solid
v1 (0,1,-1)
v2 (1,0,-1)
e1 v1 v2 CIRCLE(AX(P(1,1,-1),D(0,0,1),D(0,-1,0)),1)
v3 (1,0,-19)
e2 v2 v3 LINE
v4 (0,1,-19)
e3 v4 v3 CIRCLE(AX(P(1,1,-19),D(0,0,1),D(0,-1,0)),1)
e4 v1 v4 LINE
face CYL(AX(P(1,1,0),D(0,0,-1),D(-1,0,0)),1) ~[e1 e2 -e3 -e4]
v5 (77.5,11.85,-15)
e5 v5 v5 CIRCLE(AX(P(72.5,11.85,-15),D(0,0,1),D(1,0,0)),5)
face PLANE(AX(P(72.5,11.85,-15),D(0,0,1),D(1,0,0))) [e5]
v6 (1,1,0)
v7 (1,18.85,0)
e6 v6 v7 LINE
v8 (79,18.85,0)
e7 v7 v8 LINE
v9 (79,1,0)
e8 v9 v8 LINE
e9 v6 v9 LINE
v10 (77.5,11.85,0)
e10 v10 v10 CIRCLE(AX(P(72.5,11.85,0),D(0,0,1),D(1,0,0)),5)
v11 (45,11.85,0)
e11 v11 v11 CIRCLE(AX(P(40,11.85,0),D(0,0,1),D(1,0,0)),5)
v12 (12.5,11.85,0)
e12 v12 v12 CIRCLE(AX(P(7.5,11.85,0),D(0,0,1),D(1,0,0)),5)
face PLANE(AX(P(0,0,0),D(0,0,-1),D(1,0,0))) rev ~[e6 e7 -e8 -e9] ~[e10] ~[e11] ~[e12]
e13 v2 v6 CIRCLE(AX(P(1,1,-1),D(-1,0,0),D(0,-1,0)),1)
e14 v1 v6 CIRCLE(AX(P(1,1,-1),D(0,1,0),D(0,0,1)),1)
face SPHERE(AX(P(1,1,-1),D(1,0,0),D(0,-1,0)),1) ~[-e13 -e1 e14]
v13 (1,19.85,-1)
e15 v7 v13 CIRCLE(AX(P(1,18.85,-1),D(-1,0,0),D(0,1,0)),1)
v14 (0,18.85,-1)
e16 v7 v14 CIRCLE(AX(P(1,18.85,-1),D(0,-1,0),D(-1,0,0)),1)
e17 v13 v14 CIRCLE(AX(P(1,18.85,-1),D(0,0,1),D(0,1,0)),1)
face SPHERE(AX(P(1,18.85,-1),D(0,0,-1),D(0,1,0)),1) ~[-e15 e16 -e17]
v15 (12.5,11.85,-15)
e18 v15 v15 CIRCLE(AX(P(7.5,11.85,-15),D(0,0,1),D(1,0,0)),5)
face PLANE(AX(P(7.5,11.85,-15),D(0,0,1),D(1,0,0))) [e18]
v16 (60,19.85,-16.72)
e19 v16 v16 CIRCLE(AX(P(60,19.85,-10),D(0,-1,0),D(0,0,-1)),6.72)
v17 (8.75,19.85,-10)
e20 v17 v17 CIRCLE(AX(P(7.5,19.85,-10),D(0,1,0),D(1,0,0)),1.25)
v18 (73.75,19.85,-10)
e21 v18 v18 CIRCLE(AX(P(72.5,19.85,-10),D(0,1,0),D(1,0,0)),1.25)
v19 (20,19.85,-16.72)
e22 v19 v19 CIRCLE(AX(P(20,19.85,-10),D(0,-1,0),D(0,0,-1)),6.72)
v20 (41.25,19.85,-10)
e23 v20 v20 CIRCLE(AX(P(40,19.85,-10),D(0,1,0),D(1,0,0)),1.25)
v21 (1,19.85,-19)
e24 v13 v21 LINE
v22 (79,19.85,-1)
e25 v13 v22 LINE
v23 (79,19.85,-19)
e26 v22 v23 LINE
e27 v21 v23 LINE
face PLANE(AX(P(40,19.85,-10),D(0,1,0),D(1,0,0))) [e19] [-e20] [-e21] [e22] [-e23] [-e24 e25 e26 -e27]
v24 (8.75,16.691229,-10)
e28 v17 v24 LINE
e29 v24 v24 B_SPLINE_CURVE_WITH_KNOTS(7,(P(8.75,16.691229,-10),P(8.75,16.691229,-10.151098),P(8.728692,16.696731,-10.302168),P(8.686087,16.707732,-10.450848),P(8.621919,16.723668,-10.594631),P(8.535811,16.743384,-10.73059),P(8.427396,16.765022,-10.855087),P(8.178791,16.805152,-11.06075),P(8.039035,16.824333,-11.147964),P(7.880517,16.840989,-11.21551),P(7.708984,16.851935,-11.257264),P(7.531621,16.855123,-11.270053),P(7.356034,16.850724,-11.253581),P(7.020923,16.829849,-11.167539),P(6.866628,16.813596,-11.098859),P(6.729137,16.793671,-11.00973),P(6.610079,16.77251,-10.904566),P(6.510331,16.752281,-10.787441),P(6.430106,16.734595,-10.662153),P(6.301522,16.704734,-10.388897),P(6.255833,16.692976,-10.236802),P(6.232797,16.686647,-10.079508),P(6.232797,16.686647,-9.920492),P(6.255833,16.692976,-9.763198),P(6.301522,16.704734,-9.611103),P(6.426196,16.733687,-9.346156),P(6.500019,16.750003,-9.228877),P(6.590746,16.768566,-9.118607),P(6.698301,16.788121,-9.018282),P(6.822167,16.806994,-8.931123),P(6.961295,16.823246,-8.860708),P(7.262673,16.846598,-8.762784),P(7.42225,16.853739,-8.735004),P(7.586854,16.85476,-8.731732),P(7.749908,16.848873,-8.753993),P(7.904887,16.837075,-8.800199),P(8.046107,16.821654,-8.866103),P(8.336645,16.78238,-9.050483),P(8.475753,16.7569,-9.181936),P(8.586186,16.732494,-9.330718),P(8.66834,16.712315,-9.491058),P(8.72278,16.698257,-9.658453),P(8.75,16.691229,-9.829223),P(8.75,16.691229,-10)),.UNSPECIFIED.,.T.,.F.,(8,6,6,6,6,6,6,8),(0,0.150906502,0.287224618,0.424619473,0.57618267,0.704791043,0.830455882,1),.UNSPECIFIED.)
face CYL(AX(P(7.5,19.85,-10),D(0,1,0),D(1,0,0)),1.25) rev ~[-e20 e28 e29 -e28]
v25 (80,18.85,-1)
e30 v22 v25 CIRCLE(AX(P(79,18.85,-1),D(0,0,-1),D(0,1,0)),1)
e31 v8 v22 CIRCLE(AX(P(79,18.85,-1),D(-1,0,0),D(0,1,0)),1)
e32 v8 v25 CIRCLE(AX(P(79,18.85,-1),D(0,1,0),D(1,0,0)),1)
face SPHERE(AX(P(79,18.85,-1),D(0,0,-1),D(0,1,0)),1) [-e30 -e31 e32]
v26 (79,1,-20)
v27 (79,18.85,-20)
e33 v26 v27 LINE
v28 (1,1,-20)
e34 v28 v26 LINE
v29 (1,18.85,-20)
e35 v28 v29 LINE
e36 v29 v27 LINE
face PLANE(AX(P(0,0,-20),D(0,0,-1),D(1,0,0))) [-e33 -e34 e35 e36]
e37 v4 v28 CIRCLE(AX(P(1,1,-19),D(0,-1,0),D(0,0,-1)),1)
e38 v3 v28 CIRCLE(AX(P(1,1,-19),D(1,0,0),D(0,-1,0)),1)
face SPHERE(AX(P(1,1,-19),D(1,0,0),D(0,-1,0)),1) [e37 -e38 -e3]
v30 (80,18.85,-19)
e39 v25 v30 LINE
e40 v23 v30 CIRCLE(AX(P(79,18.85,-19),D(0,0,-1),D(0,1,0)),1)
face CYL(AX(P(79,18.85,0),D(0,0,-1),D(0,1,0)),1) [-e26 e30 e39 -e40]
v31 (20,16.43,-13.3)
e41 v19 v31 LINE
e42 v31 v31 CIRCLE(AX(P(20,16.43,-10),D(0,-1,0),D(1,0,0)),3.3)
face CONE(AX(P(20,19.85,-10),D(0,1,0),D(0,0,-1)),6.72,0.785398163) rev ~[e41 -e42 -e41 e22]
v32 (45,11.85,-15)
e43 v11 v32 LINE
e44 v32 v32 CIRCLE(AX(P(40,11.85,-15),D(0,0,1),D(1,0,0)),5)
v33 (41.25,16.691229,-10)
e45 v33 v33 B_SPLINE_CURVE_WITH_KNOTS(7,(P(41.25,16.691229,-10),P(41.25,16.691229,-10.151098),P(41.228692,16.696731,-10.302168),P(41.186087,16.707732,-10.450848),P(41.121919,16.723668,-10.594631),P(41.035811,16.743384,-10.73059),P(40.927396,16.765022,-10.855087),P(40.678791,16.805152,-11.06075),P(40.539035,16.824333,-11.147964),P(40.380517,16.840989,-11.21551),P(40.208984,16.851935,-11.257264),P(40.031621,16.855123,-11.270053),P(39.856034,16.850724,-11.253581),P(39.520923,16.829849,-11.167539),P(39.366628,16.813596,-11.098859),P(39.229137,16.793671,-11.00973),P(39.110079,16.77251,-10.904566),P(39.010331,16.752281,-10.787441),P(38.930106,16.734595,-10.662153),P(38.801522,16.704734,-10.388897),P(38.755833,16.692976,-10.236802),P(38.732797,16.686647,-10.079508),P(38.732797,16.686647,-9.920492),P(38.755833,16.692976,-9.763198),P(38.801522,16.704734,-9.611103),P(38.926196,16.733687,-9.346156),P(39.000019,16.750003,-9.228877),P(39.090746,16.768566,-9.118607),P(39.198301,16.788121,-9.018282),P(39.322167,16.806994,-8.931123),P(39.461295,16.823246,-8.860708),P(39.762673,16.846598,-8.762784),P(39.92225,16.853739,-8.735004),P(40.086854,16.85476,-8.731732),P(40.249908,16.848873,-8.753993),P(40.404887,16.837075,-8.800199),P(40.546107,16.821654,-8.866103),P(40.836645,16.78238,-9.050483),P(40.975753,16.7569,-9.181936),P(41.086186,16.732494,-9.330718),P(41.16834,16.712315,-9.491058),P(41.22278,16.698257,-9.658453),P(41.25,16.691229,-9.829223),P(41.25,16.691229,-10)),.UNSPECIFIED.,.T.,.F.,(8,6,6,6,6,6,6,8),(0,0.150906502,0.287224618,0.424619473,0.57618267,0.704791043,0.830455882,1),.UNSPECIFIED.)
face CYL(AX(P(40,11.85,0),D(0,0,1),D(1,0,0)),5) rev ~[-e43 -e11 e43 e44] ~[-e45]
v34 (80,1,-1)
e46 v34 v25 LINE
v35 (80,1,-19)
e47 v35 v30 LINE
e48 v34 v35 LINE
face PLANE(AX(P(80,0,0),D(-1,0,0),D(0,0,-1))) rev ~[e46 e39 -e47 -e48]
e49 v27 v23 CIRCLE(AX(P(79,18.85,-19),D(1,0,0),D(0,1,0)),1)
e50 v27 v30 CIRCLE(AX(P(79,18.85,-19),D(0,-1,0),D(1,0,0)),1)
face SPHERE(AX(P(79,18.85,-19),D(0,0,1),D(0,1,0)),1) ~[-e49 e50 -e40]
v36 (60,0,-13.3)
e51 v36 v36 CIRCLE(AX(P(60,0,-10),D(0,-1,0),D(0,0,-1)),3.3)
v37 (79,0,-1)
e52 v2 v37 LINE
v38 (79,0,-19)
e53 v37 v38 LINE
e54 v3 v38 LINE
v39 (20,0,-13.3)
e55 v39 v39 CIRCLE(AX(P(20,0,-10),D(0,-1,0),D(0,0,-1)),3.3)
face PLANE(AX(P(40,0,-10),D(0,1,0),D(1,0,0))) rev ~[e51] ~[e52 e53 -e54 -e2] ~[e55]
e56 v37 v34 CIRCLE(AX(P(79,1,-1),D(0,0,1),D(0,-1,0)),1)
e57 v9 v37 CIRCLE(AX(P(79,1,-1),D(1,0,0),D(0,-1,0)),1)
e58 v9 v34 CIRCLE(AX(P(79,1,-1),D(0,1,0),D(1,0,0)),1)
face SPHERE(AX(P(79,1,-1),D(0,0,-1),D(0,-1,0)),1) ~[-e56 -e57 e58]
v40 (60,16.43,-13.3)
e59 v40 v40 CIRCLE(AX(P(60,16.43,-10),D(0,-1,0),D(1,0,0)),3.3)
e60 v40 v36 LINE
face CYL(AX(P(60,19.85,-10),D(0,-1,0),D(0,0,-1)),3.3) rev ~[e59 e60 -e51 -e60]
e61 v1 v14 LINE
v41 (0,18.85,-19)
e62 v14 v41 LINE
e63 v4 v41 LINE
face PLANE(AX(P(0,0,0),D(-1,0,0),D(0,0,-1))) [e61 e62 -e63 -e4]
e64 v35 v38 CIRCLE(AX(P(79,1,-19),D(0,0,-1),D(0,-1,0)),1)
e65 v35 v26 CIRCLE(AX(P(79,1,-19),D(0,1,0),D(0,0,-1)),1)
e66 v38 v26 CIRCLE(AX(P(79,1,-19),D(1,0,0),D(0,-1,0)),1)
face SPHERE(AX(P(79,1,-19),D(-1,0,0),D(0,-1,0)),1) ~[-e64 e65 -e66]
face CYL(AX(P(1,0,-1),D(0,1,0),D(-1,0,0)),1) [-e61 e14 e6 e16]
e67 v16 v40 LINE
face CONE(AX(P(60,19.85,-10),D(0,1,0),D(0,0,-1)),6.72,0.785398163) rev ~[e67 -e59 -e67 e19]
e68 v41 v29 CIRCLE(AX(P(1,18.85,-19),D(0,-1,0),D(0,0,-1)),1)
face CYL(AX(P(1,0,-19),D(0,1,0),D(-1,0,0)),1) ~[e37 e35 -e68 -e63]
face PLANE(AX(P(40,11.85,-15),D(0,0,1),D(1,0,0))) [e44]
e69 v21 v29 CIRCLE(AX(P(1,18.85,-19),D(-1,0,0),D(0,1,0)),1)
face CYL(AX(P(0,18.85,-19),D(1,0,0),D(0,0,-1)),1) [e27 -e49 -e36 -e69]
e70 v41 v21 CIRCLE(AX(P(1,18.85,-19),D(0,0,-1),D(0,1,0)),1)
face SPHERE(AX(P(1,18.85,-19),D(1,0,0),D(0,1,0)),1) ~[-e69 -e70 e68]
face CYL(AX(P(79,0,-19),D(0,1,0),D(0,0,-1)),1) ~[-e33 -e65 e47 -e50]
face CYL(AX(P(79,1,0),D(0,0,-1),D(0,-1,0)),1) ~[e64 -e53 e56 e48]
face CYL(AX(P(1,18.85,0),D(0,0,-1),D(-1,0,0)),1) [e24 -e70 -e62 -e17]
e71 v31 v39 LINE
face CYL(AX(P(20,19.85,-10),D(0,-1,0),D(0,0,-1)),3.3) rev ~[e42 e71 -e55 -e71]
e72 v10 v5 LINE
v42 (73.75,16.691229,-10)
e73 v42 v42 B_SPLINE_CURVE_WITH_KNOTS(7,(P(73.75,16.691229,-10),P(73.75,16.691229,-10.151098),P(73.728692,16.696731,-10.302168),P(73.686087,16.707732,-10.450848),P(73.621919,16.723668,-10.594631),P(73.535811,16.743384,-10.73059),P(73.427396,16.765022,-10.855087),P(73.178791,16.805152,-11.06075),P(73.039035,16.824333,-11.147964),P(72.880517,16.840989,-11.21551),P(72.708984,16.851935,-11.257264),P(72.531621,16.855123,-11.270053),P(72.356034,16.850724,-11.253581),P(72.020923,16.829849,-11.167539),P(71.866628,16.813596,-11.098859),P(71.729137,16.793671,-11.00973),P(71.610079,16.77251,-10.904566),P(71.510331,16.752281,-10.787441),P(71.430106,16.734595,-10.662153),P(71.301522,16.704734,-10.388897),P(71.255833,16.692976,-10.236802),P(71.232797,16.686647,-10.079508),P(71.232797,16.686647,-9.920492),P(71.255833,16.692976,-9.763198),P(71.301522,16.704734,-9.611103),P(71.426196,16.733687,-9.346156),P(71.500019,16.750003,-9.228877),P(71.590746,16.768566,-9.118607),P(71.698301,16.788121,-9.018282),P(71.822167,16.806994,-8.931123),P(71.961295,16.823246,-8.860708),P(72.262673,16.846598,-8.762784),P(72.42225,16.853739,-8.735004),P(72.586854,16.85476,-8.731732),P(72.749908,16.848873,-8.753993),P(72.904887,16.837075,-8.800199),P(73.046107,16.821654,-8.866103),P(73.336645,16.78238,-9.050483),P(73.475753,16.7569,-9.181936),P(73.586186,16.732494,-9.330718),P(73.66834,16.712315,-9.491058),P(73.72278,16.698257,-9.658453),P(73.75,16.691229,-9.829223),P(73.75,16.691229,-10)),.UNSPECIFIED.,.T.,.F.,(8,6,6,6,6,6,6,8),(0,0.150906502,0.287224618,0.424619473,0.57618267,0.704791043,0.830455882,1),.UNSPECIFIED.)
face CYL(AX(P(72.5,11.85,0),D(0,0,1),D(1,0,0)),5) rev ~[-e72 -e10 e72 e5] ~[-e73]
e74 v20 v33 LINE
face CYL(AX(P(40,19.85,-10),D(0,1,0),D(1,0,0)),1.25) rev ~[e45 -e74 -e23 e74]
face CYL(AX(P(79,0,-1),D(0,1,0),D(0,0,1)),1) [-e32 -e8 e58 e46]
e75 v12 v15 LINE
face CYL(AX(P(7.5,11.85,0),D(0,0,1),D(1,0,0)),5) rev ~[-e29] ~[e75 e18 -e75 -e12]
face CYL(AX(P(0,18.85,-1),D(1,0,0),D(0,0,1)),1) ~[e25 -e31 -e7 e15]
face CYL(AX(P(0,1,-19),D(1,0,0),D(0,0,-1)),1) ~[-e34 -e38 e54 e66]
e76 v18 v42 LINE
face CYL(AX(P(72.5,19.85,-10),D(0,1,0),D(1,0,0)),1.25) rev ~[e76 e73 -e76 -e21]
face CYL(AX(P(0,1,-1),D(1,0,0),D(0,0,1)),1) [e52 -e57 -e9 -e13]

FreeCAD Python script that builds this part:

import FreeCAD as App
import Part
import Sketcher
Q = App.Units.Quantity


def edges_at(feature, points):
    """Names of the edges that pass closest to the given points."""
    edges = feature.Shape.Edges
    near = lambda p: min(range(len(edges)), key=lambda i: edges[i].distToShape(Part.Vertex(*p))[0])
    return sorted({f"Edge{near(p) + 1}" for p in points})

doc = App.newDocument("Part")
body = doc.addObject("PartDesign::Body", "Body")

# Sketch on XZ plane
sketch1 = body.newObject("Sketcher::SketchObject", "Sketch")
sketch1.AttachmentSupport = (doc.getObject("XZ_Plane"), [""])
sketch1.MapMode = "FlatFace"
sketch1.addGeometry([
    Part.LineSegment(App.Vector(0, -20, 0), App.Vector(0, 0, 0)),
    Part.LineSegment(App.Vector(0, 0, 0), App.Vector(80, 0, 0)),
    Part.LineSegment(App.Vector(80, 0, 0), App.Vector(80, -20, 0)),
    Part.LineSegment(App.Vector(80, -20, 0), App.Vector(0, -20, 0)),
], False)
sketch1.addConstraint([
    Sketcher.Constraint("Coincident", 0, 2, 1, 1),
    Sketcher.Constraint("Coincident", 1, 2, 2, 1),
    Sketcher.Constraint("Coincident", 2, 2, 3, 1),
    Sketcher.Constraint("Coincident", 3, 2, 0, 1),
    Sketcher.Constraint("Vertical", 0),
    Sketcher.Constraint("Horizontal", 1),
    Sketcher.Constraint("Vertical", 2),
    Sketcher.Constraint("Horizontal", 3),
    Sketcher.Constraint("Coincident", 0, 2, -1, 1),
    Sketcher.Constraint("DistanceX", 1, 1, 1, 2, Q("80 mm")),
    Sketcher.Constraint("DistanceY", 0, 1, 0, 2, Q("20 mm")),
])
pad1 = body.newObject("PartDesign::Pad", "Pad")
pad1.Profile = sketch1
pad1.Length = 19.85
pad1.Reversed = True

# Sketch on XZ plane
sketch2 = body.newObject("Sketcher::SketchObject", "Sketch001")
sketch2.AttachmentSupport = (doc.getObject("XZ_Plane"), [""])
sketch2.MapMode = "FlatFace"
sketch2.AttachmentOffset = App.Placement(App.Vector(0, 0, -19.85), App.Rotation())
sketch2.addGeometry(Part.Circle(App.Vector(20, -10, 0), App.Vector(0, 0, 1), 3.1), False)
sketch2.addConstraint([
    Sketcher.Constraint("Diameter", 0, Q("6.2 mm")),
    Sketcher.Constraint("DistanceX", -1, 1, 0, 3, Q("20 mm")),
    Sketcher.Constraint("DistanceY", 0, 3, -1, 1, Q("10 mm")),
])
pocket1 = body.newObject("PartDesign::Pocket", "Pocket")
pocket1.Profile = sketch2
pocket1.Type = "UpToFirst"
pocket1.Reversed = True

# Sketch on XZ plane
sketch3 = body.newObject("Sketcher::SketchObject", "Sketch002")
sketch3.AttachmentSupport = (doc.getObject("XZ_Plane"), [""])
sketch3.MapMode = "FlatFace"
sketch3.AttachmentOffset = App.Placement(App.Vector(0, 0, -19.85), App.Rotation())
sketch3.addGeometry(Part.Circle(App.Vector(60, -10, 0), App.Vector(0, 0, 1), 3.1), False)
sketch3.addConstraint([
    Sketcher.Constraint("Diameter", 0, Q("6.2 mm")),
    Sketcher.Constraint("DistanceX", -1, 1, 0, 3, Q("60 mm")),
    Sketcher.Constraint("DistanceY", 0, 3, -1, 1, Q("10 mm")),
])
pocket2 = body.newObject("PartDesign::Pocket", "Pocket001")
pocket2.Profile = sketch3
pocket2.Type = "UpToFirst"
pocket2.Reversed = True

# Sketch on XY plane
sketch4 = body.newObject("Sketcher::SketchObject", "Sketch003")
sketch4.AttachmentSupport = (doc.getObject("XY_Plane"), [""])
sketch4.MapMode = "FlatFace"
sketch4.addGeometry([
    Part.Circle(App.Vector(7.5, 11.85, 0), App.Vector(0, 0, 1), 5),
    Part.Circle(App.Vector(72.5, 11.85, 0), App.Vector(0, 0, 1), 5),
    Part.Circle(App.Vector(40, 11.85, 0), App.Vector(0, 0, 1), 5),
], False)
sketch4.addConstraint([
    Sketcher.Constraint("Equal", 0, 1),
    Sketcher.Constraint("Equal", 1, 2),
    Sketcher.Constraint("Horizontal", 0, 3, 1, 3),
    Sketcher.Constraint("Horizontal", 1, 3, 2, 3),
    Sketcher.Constraint("Diameter", 0, Q("10 mm")),
    Sketcher.Constraint("DistanceX", -1, 1, 2, 3, Q("40 mm")),
    Sketcher.Constraint("DistanceX", 0, 3, 1, 3, Q("65 mm")),
    Sketcher.Constraint("DistanceX", -1, 1, 0, 3, Q("7.5 mm")),
    Sketcher.Constraint("DistanceY", -1, 1, 0, 3, Q("11.85 mm")),
])
pocket3 = body.newObject("PartDesign::Pocket", "Pocket002")
pocket3.Profile = sketch4
pocket3.Length = 15
doc.recompute()

fillet = body.newObject("PartDesign::Fillet", "Fillet")
fillet.Base = (pocket3, edges_at(pocket3, [
    (80, 19.85, -10),
    (40, 19.85, -20),
    (0, 19.85, -10),
    (40, 0, -20),
    (80, 0, -10),
    (40, 0, 0),
    (0, 0, -10),
    (40, 19.85, 0),
    (0, 9.925, -20),
    (80, 9.925, -20),
    (80, 9.925, 0),
    (0, 9.925, 0),
]))
fillet.Radius = 1

# Sketch on XZ plane
sketch5 = body.newObject("Sketcher::SketchObject", "Sketch004")
sketch5.AttachmentSupport = (doc.getObject("XZ_Plane"), [""])
sketch5.MapMode = "FlatFace"
sketch5.AttachmentOffset = App.Placement(App.Vector(0, 0, -19.85), App.Rotation())
sketch5.addGeometry([
    Part.Circle(App.Vector(20, -10, 0), App.Vector(0, 0, 1), 3.3),
    Part.Circle(App.Vector(60, -10, 0), App.Vector(0, 0, 1), 3.3),
], False)
sketch5.addConstraint([
    Sketcher.Constraint("Equal", 0, 1),
    Sketcher.Constraint("Horizontal", 0, 3, 1, 3),
    Sketcher.Constraint("Diameter", 0, Q("6.6 mm")),
    Sketcher.Constraint("DistanceX", -1, 1, 0, 3, Q("20 mm")),
    Sketcher.Constraint("DistanceY", 0, 3, -1, 1, Q("10 mm")),
    Sketcher.Constraint("DistanceX", -1, 1, 1, 3, Q("60 mm")),
])
doc.recompute()
hole = body.newObject("PartDesign::Hole", "Hole")
hole.Profile = sketch5
hole.ThreadType = "None"
hole.Diameter = 6.6
hole.DepthType = "Dimension"
hole.Depth = 19.85
hole.DrillPoint = "Flat"
hole.HoleCutType = "Countersink"
hole.HoleCutDiameter = 13.44
hole.HoleCutCountersinkAngle = 90
hole.Reversed = True

# Sketch on XZ plane
sketch6 = body.newObject("Sketcher::SketchObject", "Sketch005")
sketch6.AttachmentSupport = (doc.getObject("XZ_Plane"), [""])
sketch6.MapMode = "FlatFace"
sketch6.AttachmentOffset = App.Placement(App.Vector(0, 0, -19.85), App.Rotation())
sketch6.addGeometry(Part.Circle(App.Vector(7.5, -10, 0), App.Vector(0, 0, 1), 1.25), False)
sketch6.addConstraint([
    Sketcher.Constraint("Diameter", 0, Q("2.5 mm")),
    Sketcher.Constraint("DistanceY", 0, 3, -1, 1, Q("10 mm")),
    Sketcher.Constraint("DistanceX", -1, 1, 0, 3, Q("7.5 mm")),
])
pocket4 = body.newObject("PartDesign::Pocket", "Pocket003")
pocket4.Profile = sketch6
pocket4.Type = "UpToFirst"
pocket4.Reversed = True

# Sketch on XZ plane
sketch7 = body.newObject("Sketcher::SketchObject", "Sketch006")
sketch7.AttachmentSupport = (doc.getObject("XZ_Plane"), [""])
sketch7.MapMode = "FlatFace"
sketch7.AttachmentOffset = App.Placement(App.Vector(0, 0, -19.85), App.Rotation())
sketch7.addGeometry(Part.Circle(App.Vector(40, -10, 0), App.Vector(0, 0, 1), 1.25), False)
sketch7.addConstraint([
    Sketcher.Constraint("Diameter", 0, Q("2.5 mm")),
    Sketcher.Constraint("DistanceX", -1, 1, 0, 3, Q("40 mm")),
    Sketcher.Constraint("DistanceY", 0, 3, -1, 1, Q("10 mm")),
])
pocket5 = body.newObject("PartDesign::Pocket", "Pocket004")
pocket5.Profile = sketch7
pocket5.Type = "UpToFirst"
pocket5.Reversed = True

# Sketch on XZ plane
sketch8 = body.newObject("Sketcher::SketchObject", "Sketch007")
sketch8.AttachmentSupport = (doc.getObject("XZ_Plane"), [""])
sketch8.MapMode = "FlatFace"
sketch8.AttachmentOffset = App.Placement(App.Vector(0, 0, -19.85), App.Rotation())
sketch8.addGeometry(Part.Circle(App.Vector(72.5, -10, 0), App.Vector(0, 0, 1), 1.25), False)
sketch8.addConstraint([
    Sketcher.Constraint("Diameter", 0, Q("2.5 mm")),
    Sketcher.Constraint("DistanceY", 0, 3, -1, 1, Q("10 mm")),
    Sketcher.Constraint("DistanceX", -1, 1, 0, 3, Q("72.5 mm")),
])
pocket6 = body.newObject("PartDesign::Pocket", "Pocket005")
pocket6.Profile = sketch8
pocket6.Type = "UpToFirst"
pocket6.Reversed = True

doc.recompute()
